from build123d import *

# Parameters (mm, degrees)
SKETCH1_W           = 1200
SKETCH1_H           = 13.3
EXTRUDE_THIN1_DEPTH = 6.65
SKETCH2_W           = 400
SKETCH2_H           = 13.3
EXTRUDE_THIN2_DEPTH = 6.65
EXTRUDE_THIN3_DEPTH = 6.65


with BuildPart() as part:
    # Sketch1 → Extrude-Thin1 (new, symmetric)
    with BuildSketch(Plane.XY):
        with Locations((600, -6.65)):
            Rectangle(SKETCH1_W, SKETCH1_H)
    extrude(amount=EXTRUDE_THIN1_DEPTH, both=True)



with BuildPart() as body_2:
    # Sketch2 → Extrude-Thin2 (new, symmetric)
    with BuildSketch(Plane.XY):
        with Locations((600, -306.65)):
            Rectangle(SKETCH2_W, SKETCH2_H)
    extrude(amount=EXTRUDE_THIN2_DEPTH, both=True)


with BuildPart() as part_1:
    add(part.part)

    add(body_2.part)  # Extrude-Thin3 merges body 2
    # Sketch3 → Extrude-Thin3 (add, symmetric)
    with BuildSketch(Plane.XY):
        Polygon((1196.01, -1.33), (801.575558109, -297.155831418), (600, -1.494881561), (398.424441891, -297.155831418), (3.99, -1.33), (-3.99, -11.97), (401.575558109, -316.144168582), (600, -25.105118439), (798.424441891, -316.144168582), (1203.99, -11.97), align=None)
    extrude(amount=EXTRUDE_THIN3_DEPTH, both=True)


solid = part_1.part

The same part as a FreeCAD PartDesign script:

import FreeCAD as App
import Part
import Sketcher
Q = App.Units.Quantity


def add_polygon(sketch, points):
    """Adds a closed chain of lines whose ends are joined by coincident constraints."""
    first, n = sketch.GeometryCount, len(points)
    for a, b in zip(points, points[1:] + points[:1]):
        sketch.addGeometry(Part.LineSegment(App.Vector(*a, 0), App.Vector(*b, 0)), False)
    for i in range(n):
        sketch.addConstraint(Sketcher.Constraint("Coincident", first + i, 2, first + (i + 1) % n, 1))

doc = App.newDocument("Part")
body = doc.addObject("PartDesign::Body", "Body")

sketch1 = body.newObject("Sketcher::SketchObject", "Sketch")
sketch1.AttachmentSupport = (doc.getObject("XY_Plane"), [""])
sketch1.MapMode = "FlatFace"
add_polygon(sketch1, [(0, 0), (0, -13.3), (1200, -13.3), (1200, 0)])
sketch1.addConstraint([
    Sketcher.Constraint("Vertical", 0),
    Sketcher.Constraint("Horizontal", 1),
    Sketcher.Constraint("Vertical", 2),
    Sketcher.Constraint("Horizontal", 3),
    Sketcher.Constraint("Coincident", 3, 2, -1, 1),
    Sketcher.Constraint("DistanceX", 1, 1, 1, 2, Q("1200 mm")),
    Sketcher.Constraint("DistanceY", 0, 2, 0, 1, Q("13.3 mm")),
])
pad1 = body.newObject("PartDesign::Pad", "Pad")
pad1.Profile = sketch1
pad1.Length = 13.3
pad1.Midplane = True
body2 = doc.addObject("PartDesign::Body", "Body001")

sketch2 = body2.newObject("Sketcher::SketchObject", "Sketch001")
sketch2.AttachmentSupport = (doc.getObject("XY_Plane001"), [""])
sketch2.MapMode = "FlatFace"
add_polygon(sketch2, [(400, -300), (400, -313.3), (800, -313.3), (800, -300)])
sketch2.addConstraint([
    Sketcher.Constraint("Vertical", 0),
    Sketcher.Constraint("Horizontal", 1),
    Sketcher.Constraint("Vertical", 2),
    Sketcher.Constraint("Horizontal", 3),
    Sketcher.Constraint("DistanceX", 1, 1, 1, 2, Q("400 mm")),
    Sketcher.Constraint("DistanceY", 0, 2, 0, 1, Q("13.3 mm")),
    Sketcher.Constraint("DistanceX", -1, 1, 0, 2, Q("400 mm")),
    Sketcher.Constraint("DistanceY", 2, 2, -1, 1, Q("300 mm")),
])
pad2 = body2.newObject("PartDesign::Pad", "Pad001")
pad2.Profile = sketch2
pad2.Length = 13.3
pad2.Midplane = True
body.AllowCompound = True
doc.recompute()

boolean = body.newObject("PartDesign::Boolean", "Boolean")
boolean.Type = "Fuse"
boolean.addObjects([body2])

sketch3 = body.newObject("Sketcher::SketchObject", "Sketch002")
sketch3.AttachmentSupport = (doc.getObject("XY_Plane"), [""])
sketch3.MapMode = "FlatFace"
add_polygon(sketch3, [(1196.01, -1.33), (801.575558, -297.155831), (600, -1.494882), (398.424442, -297.155831), (3.99, -1.33), (-3.99, -11.97), (401.575558, -316.144169), (600, -25.105118), (798.424442, -316.144169), (1203.99, -11.97)])
sketch3.addConstraint([
    Sketcher.Constraint("Perpendicular", 3, 4),
    Sketcher.Constraint("Perpendicular", 4, 5),
    Sketcher.Constraint("Parallel", 2, 6),
    Sketcher.Constraint("Parallel", 1, 7),
    Sketcher.Constraint("Parallel", 0, 8),
    Sketcher.Constraint("Perpendicular", 8, 9),
    Sketcher.Constraint("Horizontal", 0, 2, 2, 2),
    Sketcher.Constraint("Horizontal", 5, 2, 7, 2),
    Sketcher.Constraint("Horizontal", 4, 2, 8, 2),
    Sketcher.Constraint("Horizontal", 3, 2, 9, 2),
    Sketcher.Constraint("Vertical", 1, 2, 6, 2),
    Sketcher.Constraint("Equal", 1, 2),
    Sketcher.Constraint("DistanceX", -1, 1, 1, 2, Q("600 mm")),
    Sketcher.Constraint("DistanceX", 5, 2, 0, 2, Q("400 mm")),
    Sketcher.Constraint("Distance", 4, Q("13.3 mm")),
    Sketcher.Constraint("DistanceX", -1, 1, 3, 2, Q("3.99 mm")),
    Sketcher.Constraint("DistanceY", 3, 2, -1, 1, Q("1.33 mm")),
    Sketcher.Constraint("DistanceX", 4, 2, -1, 1, Q("3.99 mm")),
    Sketcher.Constraint("DistanceX", -1, 1, 0, 2, Q("801.575558 mm")),
    Sketcher.Constraint("DistanceY", 1, 2, -1, 1, Q("1.494882 mm")),
])
pad3 = body.newObject("PartDesign::Pad", "Pad002")
pad3.Profile = sketch3
pad3.Length = 13.3
pad3.Midplane = True

doc.recompute()
